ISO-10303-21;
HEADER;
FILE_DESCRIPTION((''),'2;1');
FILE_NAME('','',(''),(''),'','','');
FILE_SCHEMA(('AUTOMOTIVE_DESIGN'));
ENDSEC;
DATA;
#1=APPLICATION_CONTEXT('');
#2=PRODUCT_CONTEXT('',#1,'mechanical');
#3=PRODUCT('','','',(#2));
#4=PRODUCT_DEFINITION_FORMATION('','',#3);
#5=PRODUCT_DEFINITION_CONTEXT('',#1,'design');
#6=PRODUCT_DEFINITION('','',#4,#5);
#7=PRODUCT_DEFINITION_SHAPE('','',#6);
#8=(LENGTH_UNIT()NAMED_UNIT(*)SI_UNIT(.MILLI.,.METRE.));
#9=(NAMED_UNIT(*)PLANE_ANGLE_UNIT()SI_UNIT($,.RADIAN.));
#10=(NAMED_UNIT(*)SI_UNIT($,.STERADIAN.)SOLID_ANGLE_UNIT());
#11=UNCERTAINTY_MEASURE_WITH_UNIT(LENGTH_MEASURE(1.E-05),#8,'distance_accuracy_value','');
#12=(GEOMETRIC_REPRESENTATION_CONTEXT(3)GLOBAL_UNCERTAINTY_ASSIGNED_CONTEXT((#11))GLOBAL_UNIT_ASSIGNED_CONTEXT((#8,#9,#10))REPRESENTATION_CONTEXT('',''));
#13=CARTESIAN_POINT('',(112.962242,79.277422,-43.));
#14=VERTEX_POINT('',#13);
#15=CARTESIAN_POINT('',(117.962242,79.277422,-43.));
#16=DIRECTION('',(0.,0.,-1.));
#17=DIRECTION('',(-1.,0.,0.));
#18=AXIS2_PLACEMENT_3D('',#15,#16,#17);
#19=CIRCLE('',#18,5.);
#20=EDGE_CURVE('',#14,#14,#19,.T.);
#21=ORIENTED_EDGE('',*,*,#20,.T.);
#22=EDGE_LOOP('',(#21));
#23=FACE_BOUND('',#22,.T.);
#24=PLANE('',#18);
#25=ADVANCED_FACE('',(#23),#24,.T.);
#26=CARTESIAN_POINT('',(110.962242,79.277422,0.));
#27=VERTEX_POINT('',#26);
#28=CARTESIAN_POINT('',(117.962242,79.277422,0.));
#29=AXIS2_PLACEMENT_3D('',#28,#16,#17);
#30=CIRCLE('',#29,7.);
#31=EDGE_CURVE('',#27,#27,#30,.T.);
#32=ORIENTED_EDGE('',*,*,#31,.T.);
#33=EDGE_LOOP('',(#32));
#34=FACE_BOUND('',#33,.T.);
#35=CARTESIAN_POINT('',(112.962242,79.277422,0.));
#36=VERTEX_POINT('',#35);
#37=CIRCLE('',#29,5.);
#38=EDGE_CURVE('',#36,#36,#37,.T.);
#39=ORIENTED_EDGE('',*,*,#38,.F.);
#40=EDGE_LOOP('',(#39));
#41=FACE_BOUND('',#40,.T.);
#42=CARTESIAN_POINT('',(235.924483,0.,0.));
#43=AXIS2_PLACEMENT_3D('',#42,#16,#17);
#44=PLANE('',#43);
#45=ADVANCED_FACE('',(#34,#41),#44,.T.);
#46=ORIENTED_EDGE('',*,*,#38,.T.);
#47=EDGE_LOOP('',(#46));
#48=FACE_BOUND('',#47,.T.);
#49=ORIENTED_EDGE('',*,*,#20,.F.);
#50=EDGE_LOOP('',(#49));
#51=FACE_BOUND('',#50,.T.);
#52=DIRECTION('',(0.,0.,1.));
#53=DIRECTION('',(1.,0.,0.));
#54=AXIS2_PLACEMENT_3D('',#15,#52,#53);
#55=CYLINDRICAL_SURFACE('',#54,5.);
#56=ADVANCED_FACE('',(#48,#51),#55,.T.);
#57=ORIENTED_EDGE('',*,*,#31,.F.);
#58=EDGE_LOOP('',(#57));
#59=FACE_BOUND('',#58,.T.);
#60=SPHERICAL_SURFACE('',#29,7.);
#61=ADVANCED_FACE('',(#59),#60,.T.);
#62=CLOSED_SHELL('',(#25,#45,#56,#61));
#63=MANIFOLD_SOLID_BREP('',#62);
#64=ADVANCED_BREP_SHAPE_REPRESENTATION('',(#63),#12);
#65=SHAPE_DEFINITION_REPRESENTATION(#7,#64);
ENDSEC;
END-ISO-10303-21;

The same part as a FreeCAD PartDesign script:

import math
import FreeCAD as App
import Part
import Sketcher

V = App.Vector
Q = App.Units.Quantity


def add_polygon(sketch, points):
    """Adds a closed chain of lines whose ends are joined by coincident constraints."""
    first, n = sketch.GeometryCount, len(points)
    for a, b in zip(points, points[1:] + points[:1]):
        sketch.addGeometry(Part.LineSegment(App.Vector(*a, 0), App.Vector(*b, 0)), False)
    for i in range(n):
        sketch.addConstraint(Sketcher.Constraint("Coincident", first + i, 2, first + (i + 1) % n, 1))

doc = App.newDocument("Part")
body = doc.addObject("PartDesign::Body", "Body")

sketch1 = body.newObject("Sketcher::SketchObject", "Sketch")
sketch1.AttachmentSupport = (doc.getObject("XY_Plane"), [""])
sketch1.MapMode = "FlatFace"
sketch1.addGeometry([
    Part.LineSegment(V(110, 82, 0), V(110, 98, 0)),
    Part.ArcOfCircle(Part.Circle(V(110, 90, 0), V(0, 0, 1), 8), math.radians(90), math.radians(270)),
], False)
sketch1.addGeometry(Part.LineSegment(V(110, 82, 0), V(110, 98, 0)), True)
sketch1.addConstraint([
    Sketcher.Constraint("Coincident", 0, 1, 1, 2),
    Sketcher.Constraint("Coincident", 1, 1, 0, 2),
    Sketcher.Constraint("Vertical", 0),
    Sketcher.Constraint("Vertical", 2),
    Sketcher.Constraint("Coincident", 2, 1, 0, 1),
    Sketcher.Constraint("Vertical", 1, 3, 0, 1),
    Sketcher.Constraint("Equal", 0, 2),
    Sketcher.Constraint("Radius", 1, Q("8 mm")),
    Sketcher.Constraint("DistanceX", -1, 1, 1, 3, Q("110 mm")),
    Sketcher.Constraint("DistanceY", -1, 1, 1, 3, Q("90 mm")),
])
revolution = body.newObject("PartDesign::Revolution", "Revolution")
revolution.Profile = sketch1
revolution.ReferenceAxis = (sketch1, ["Axis0"])
revolution.Angle = 180

sketch2 = body.newObject("Sketcher::SketchObject", "Sketch001")
sketch2.AttachmentSupport = (doc.getObject("XZ_Plane"), [""])
sketch2.MapMode = "FlatFace"
sketch2.AttachmentOffset = App.Placement(V(0, 0, -120), App.Rotation())
add_polygon(sketch2, [(102, 3), (102, 11), (118, 11), (118, 3)])
sketch2.addConstraint([
    Sketcher.Constraint("Vertical", 0),
    Sketcher.Constraint("Horizontal", 1),
    Sketcher.Constraint("Vertical", 2),
    Sketcher.Constraint("Horizontal", 3),
    Sketcher.Constraint("DistanceX", 1, 1, 1, 2, Q("15.068112 mm")),
    Sketcher.Constraint("DistanceY", 0, 1, 0, 2, Q("7.965756 mm")),
    Sketcher.Constraint("DistanceY", -1, 1, 0, 2, Q("10.656109 mm")),
    Sketcher.Constraint("DistanceX", -1, 1, 0, 2, Q("102.465944 mm")),
])
pocket1 = body.newObject("PartDesign::Pocket", "Pocket")
pocket1.Profile = sketch2
pocket1.Length = 56
pocket1.Reversed = True

sketch3 = body.newObject("Sketcher::SketchObject", "Sketch002")
sketch3.AttachmentSupport = (doc.getObject("XY_Plane"), [""])
sketch3.MapMode = "FlatFace"
sketch3.addGeometry(Part.Circle(V(110, 90, 0), V(0, 0, 1), 8), False)
sketch3.addConstraint([
    Sketcher.Constraint("Diameter", 0, Q("16 mm")),
    Sketcher.Constraint("DistanceX", -1, 1, 0, 3, Q("110 mm")),
    Sketcher.Constraint("DistanceY", -1, 1, 0, 3, Q("90 mm")),
])
pocket2 = body.newObject("PartDesign::Pocket", "Pocket001")
pocket2.Profile = sketch3
pocket2.Length = 10
pocket2.Reversed = True
body2 = doc.addObject("PartDesign::Body", "Body001")

sketch4 = body2.newObject("Sketcher::SketchObject", "Sketch003")
sketch4.AttachmentSupport = (doc.getObject("XY_Plane001"), [""])
sketch4.MapMode = "FlatFace"
sketch4.addGeometry(Part.Circle(V(118, 79, 0), V(0, 0, 1), 5), False)
sketch4.addConstraint([
    Sketcher.Constraint("Diameter", 0, Q("10 mm")),
    Sketcher.Constraint("DistanceX", -1, 1, 0, 3, Q("117.962242 mm")),
    Sketcher.Constraint("DistanceY", -1, 1, 0, 3, Q("79.277422 mm")),
])
pad1 = body2.newObject("PartDesign::Pad", "Pad")
pad1.Profile = sketch4
pad1.Length = 43
pad1.Reversed = True

sketch5 = body2.newObject("Sketcher::SketchObject", "Sketch004")
sketch5.AttachmentSupport = (doc.getObject("XY_Plane001"), [""])
sketch5.MapMode = "FlatFace"
sketch5.addGeometry([
    Part.ArcOfCircle(Part.Circle(V(118, 79.3, 0), V(0, 0, 1), 7), math.radians(90), math.radians(270)),
    Part.LineSegment(V(118, 72.3, 0), V(118, 74.3, 0)),
    Part.ArcOfCircle(Part.Circle(V(118, 79.3, 0), V(0, 0, 1), 5), math.radians(-90), math.radians(90)),
    Part.LineSegment(V(118, 84.3, 0), V(118, 86.3, 0)),
], False)
sketch5.addGeometry(Part.LineSegment(V(118, 72.3, 0), V(118, 86.3, 0)), True)
sketch5.addConstraint([
    Sketcher.Constraint("Coincident", 0, 2, 1, 1),
    Sketcher.Constraint("Coincident", 1, 2, 2, 1),
    Sketcher.Constraint("Coincident", 2, 2, 3, 1),
    Sketcher.Constraint("Coincident", 3, 2, 0, 1),
    Sketcher.Constraint("Vertical", 1),
    Sketcher.Constraint("Vertical", 3),
    Sketcher.Constraint("Vertical", 4),
    Sketcher.Constraint("Coincident", 2, 3, 0, 3),
    Sketcher.Constraint("Coincident", 4, 1, 0, 2),
    Sketcher.Constraint("Coincident", 4, 2, 3, 2),
    Sketcher.Constraint("Vertical", 2, 3, 0, 2),
    Sketcher.Constraint("Radius", 0, Q("7 mm")),
    Sketcher.Constraint("Radius", 2, Q("5 mm")),
    Sketcher.Constraint("DistanceX", -1, 1, 0, 3, Q("117.962242 mm")),
    Sketcher.Constraint("DistanceY", -1, 1, 0, 3, Q("79.277422 mm")),
])
revolution2 = body2.newObject("PartDesign::Revolution", "Revolution001")
revolution2.Profile = sketch5
revolution2.ReferenceAxis = (sketch5, ["Axis0"])
revolution2.Angle = 180

doc.recompute()
